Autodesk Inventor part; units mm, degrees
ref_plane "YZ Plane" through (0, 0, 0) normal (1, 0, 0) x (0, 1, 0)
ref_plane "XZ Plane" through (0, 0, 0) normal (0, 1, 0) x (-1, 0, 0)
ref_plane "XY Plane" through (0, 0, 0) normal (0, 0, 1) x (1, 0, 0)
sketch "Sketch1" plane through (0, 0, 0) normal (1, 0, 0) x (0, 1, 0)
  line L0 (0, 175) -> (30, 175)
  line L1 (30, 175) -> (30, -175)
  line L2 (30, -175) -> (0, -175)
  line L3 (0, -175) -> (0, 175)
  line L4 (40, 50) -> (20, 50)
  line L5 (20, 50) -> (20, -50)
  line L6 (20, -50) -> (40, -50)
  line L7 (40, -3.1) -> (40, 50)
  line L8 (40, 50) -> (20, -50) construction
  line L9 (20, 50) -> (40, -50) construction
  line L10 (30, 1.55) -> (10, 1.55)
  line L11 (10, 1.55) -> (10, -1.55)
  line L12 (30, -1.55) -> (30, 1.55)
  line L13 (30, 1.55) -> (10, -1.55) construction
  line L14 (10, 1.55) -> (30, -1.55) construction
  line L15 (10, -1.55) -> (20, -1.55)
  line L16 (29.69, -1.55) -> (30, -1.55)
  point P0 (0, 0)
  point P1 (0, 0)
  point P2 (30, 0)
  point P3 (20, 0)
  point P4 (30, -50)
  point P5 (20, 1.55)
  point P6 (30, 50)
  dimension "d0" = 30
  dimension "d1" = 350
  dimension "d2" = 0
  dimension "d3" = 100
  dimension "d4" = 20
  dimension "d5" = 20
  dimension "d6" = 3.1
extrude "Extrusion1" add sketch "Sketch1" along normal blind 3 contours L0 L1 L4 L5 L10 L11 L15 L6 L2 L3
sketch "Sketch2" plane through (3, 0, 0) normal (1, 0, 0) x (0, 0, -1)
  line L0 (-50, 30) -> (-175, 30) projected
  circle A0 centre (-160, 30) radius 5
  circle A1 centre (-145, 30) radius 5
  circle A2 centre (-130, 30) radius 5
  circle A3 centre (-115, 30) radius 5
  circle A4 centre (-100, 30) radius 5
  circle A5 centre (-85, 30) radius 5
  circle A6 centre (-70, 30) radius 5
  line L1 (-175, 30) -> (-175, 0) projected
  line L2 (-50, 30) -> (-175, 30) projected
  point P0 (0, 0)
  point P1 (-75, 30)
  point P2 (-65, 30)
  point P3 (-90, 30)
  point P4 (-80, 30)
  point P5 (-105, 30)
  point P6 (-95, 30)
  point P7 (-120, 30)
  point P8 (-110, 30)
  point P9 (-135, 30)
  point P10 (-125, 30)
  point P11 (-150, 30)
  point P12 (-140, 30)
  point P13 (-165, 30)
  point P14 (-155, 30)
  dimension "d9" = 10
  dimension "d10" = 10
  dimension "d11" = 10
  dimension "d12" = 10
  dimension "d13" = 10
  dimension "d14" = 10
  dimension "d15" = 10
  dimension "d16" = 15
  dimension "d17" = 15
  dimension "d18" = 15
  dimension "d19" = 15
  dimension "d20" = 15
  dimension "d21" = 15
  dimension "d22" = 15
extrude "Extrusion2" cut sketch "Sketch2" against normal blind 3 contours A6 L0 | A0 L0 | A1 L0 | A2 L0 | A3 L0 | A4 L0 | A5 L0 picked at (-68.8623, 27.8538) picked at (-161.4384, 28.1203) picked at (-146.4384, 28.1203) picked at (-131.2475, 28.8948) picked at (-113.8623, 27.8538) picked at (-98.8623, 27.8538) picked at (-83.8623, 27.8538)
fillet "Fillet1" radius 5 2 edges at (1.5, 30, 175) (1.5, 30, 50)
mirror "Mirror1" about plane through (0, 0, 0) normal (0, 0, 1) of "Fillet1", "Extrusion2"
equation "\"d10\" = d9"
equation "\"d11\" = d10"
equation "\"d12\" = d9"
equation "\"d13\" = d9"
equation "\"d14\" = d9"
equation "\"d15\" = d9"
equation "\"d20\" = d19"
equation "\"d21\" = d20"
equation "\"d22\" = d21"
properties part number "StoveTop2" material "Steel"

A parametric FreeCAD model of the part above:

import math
import FreeCAD as App
import Part
import Sketcher
from FreeCAD import Vector
Q = App.Units.Quantity


def edges_at(feature, points):
    """Names of the edges that pass closest to the given points."""
    edges = feature.Shape.Edges
    near = lambda p: min(range(len(edges)), key=lambda i: edges[i].distToShape(Part.Vertex(*p))[0])
    return sorted({f"Edge{near(p) + 1}" for p in points})


def add_polygon(sketch, points):
    """Adds a closed chain of lines whose ends are joined by coincident constraints."""
    first, n = sketch.GeometryCount, len(points)
    for a, b in zip(points, points[1:] + points[:1]):
        sketch.addGeometry(Part.LineSegment(App.Vector(*a, 0), App.Vector(*b, 0)), False)
    for i in range(n):
        sketch.addConstraint(Sketcher.Constraint("Coincident", first + i, 2, first + (i + 1) % n, 1))

doc = App.newDocument("Part")
body = doc.addObject("PartDesign::Body", "Body")

# Sketch on YZ plane
sketch1 = body.newObject("Sketcher::SketchObject", "Sketch")
sketch1.AttachmentSupport = (doc.getObject("YZ_Plane"), [""])
sketch1.MapMode = "FlatFace"
add_polygon(sketch1, [(30, 175), (0, 175), (0, -175), (30, -175), (30, -50), (20, -50), (20, -1.6), (10, -1.6), (10, 1.6), (20, 1.6), (20, 50), (30, 50)])  # lines 0-11
sketch1.addConstraint([
    Sketcher.Constraint("Horizontal", 0),
    Sketcher.Constraint("Vertical", 1),
    Sketcher.Constraint("Horizontal", 2),
    Sketcher.Constraint("Vertical", 3),
    Sketcher.Constraint("Horizontal", 4),
    Sketcher.Constraint("Vertical", 5),
    Sketcher.Constraint("Horizontal", 6),
    Sketcher.Constraint("Vertical", 7),
    Sketcher.Constraint("Horizontal", 8),
    Sketcher.Constraint("Vertical", 9),
    Sketcher.Constraint("Horizontal", 10),
    Sketcher.Constraint("Vertical", 11),
    Sketcher.Constraint("Symmetric", 0, 2, 1, 2, -1, 1),
    Sketcher.Constraint("Symmetric", 5, 2, 8, 2, -1),
    Sketcher.Constraint("Symmetric", 3, 2, 10, 2, -1),
    Sketcher.Constraint("Equal", 4, 6),
    Sketcher.Constraint("DistanceX", 0, 2, 0, 1, Q("30 mm")),
    Sketcher.Constraint("DistanceY", 1, 2, 1, 1, Q("350 mm")),
    Sketcher.Constraint("DistanceY", 7, 1, 7, 2, Q("3.1 mm")),
    Sketcher.Constraint("DistanceX", -1, 1, 4, 2, Q("20 mm")),
    Sketcher.Constraint("DistanceY", 4, 2, 9, 2, Q("100 mm")),
])
pad1 = body.newObject("PartDesign::Pad", "Pad")
pad1.Profile = sketch1
pad1.Length = 3

# Sketch on YZ plane
sketch2 = body.newObject("Sketcher::SketchObject", "Sketch001")
sketch2.AttachmentSupport = (doc.getObject("YZ_Plane"), [""])
sketch2.MapMode = "FlatFace"
sketch2.AttachmentOffset = App.Placement(Vector(0, 0, 3), App.Rotation())
sketch2.addGeometry([
    Part.ArcOfCircle(Part.Circle(Vector(30, 70, 0), Vector(0, 0, 1), 5), math.radians(90), math.radians(270)),  # 0
    Part.LineSegment(Vector(30, 65, 0), Vector(30, 75, 0)),  # 1
    Part.ArcOfCircle(Part.Circle(Vector(30, 160, 0), Vector(0, 0, 1), 5), math.radians(90), math.radians(270)),  # 2
    Part.LineSegment(Vector(30, 155, 0), Vector(30, 165, 0)),  # 3
    Part.ArcOfCircle(Part.Circle(Vector(30, 145, 0), Vector(0, 0, 1), 5), math.radians(90), math.radians(270)),  # 4
    Part.LineSegment(Vector(30, 140, 0), Vector(30, 150, 0)),  # 5
    Part.ArcOfCircle(Part.Circle(Vector(30, 130, 0), Vector(0, 0, 1), 5), math.radians(90), math.radians(270)),  # 6
    Part.LineSegment(Vector(30, 125, 0), Vector(30, 135, 0)),  # 7
    Part.ArcOfCircle(Part.Circle(Vector(30, 115, 0), Vector(0, 0, 1), 5), math.radians(90), math.radians(270)),  # 8
    Part.LineSegment(Vector(30, 110, 0), Vector(30, 120, 0)),  # 9
    Part.ArcOfCircle(Part.Circle(Vector(30, 100, 0), Vector(0, 0, 1), 5), math.radians(90), math.radians(270)),  # 10
    Part.LineSegment(Vector(30, 95, 0), Vector(30, 105, 0)),  # 11
    Part.ArcOfCircle(Part.Circle(Vector(30, 85, 0), Vector(0, 0, 1), 5), math.radians(90), math.radians(270)),  # 12
    Part.LineSegment(Vector(30, 80, 0), Vector(30, 90, 0)),  # 13
], False)
sketch2.addConstraint([
    Sketcher.Constraint("Coincident", 0, 1, 1, 2),
    Sketcher.Constraint("Coincident", 1, 1, 0, 2),
    Sketcher.Constraint("Coincident", 2, 1, 3, 2),
    Sketcher.Constraint("Coincident", 3, 1, 2, 2),
    Sketcher.Constraint("Coincident", 4, 1, 5, 2),
    Sketcher.Constraint("Coincident", 5, 1, 4, 2),
    Sketcher.Constraint("Coincident", 6, 1, 7, 2),
    Sketcher.Constraint("Coincident", 7, 1, 6, 2),
    Sketcher.Constraint("Coincident", 8, 1, 9, 2),
    Sketcher.Constraint("Coincident", 9, 1, 8, 2),
    Sketcher.Constraint("Coincident", 10, 1, 11, 2),
    Sketcher.Constraint("Coincident", 11, 1, 10, 2),
    Sketcher.Constraint("Coincident", 12, 1, 13, 2),
    Sketcher.Constraint("Coincident", 13, 1, 12, 2),
    Sketcher.Constraint("Vertical", 1),
    Sketcher.Constraint("Vertical", 3),
    Sketcher.Constraint("Vertical", 5),
    Sketcher.Constraint("Vertical", 7),
    Sketcher.Constraint("Vertical", 9),
    Sketcher.Constraint("Vertical", 11),
    Sketcher.Constraint("Vertical", 13),
    Sketcher.Constraint("Equal", 0, 2),
    Sketcher.Constraint("Equal", 2, 4),
    Sketcher.Constraint("Equal", 4, 6),
    Sketcher.Constraint("Equal", 6, 8),
    Sketcher.Constraint("Equal", 8, 10),
    Sketcher.Constraint("Equal", 10, 12),
    Sketcher.Constraint("Vertical", 0, 3, 2, 3),
    Sketcher.Constraint("Vertical", 2, 3, 4, 3),
    Sketcher.Constraint("Vertical", 4, 3, 6, 3),
    Sketcher.Constraint("Vertical", 6, 3, 8, 3),
    Sketcher.Constraint("Vertical", 8, 3, 10, 3),
    Sketcher.Constraint("Vertical", 10, 3, 12, 3),
    Sketcher.Constraint("Vertical", 12, 3, 0, 1),
    Sketcher.Constraint("Vertical", 1, 1, 2, 1),
    Sketcher.Constraint("Vertical", 3, 1, 4, 1),
    Sketcher.Constraint("Vertical", 5, 1, 6, 1),
    Sketcher.Constraint("Vertical", 7, 1, 8, 1),
    Sketcher.Constraint("Vertical", 9, 1, 10, 1),
    Sketcher.Constraint("Vertical", 11, 1, 12, 1),
    Sketcher.Constraint("Radius", 0, Q("5 mm")),
    Sketcher.Constraint("DistanceY", 4, 3, 2, 3, Q("15 mm")),
    Sketcher.Constraint("DistanceY", 6, 3, 4, 3, Q("15 mm")),
    Sketcher.Constraint("DistanceY", 8, 3, 6, 3, Q("15 mm")),
    Sketcher.Constraint("DistanceY", 10, 3, 8, 3, Q("15 mm")),
    Sketcher.Constraint("DistanceY", 0, 3, 12, 3, Q("15 mm")),
    Sketcher.Constraint("DistanceY", 12, 3, 10, 3, Q("15 mm")),
    Sketcher.Constraint("DistanceX", -1, 1, 0, 3, Q("30 mm")),
    Sketcher.Constraint("DistanceY", -1, 1, 0, 3, Q("70 mm")),
])
pocket1 = body.newObject("PartDesign::Pocket", "Pocket")
pocket1.Profile = sketch2
pocket1.Length = 3
doc.recompute()

fillet = body.newObject("PartDesign::Fillet", "Fillet")
fillet.Base = (pocket1, edges_at(pocket1, [(1.5, 30, 175), (1.5, 30, 50)]))
fillet.Radius = 5
doc.recompute()

mirrored = body.newObject("PartDesign::Mirrored", "Mirrored")
mirrored.Originals = [fillet, pocket1]
mirrored.MirrorPlane = (doc.getObject("XY_Plane"), [""])
body.Tip = mirrored

doc.recompute()
